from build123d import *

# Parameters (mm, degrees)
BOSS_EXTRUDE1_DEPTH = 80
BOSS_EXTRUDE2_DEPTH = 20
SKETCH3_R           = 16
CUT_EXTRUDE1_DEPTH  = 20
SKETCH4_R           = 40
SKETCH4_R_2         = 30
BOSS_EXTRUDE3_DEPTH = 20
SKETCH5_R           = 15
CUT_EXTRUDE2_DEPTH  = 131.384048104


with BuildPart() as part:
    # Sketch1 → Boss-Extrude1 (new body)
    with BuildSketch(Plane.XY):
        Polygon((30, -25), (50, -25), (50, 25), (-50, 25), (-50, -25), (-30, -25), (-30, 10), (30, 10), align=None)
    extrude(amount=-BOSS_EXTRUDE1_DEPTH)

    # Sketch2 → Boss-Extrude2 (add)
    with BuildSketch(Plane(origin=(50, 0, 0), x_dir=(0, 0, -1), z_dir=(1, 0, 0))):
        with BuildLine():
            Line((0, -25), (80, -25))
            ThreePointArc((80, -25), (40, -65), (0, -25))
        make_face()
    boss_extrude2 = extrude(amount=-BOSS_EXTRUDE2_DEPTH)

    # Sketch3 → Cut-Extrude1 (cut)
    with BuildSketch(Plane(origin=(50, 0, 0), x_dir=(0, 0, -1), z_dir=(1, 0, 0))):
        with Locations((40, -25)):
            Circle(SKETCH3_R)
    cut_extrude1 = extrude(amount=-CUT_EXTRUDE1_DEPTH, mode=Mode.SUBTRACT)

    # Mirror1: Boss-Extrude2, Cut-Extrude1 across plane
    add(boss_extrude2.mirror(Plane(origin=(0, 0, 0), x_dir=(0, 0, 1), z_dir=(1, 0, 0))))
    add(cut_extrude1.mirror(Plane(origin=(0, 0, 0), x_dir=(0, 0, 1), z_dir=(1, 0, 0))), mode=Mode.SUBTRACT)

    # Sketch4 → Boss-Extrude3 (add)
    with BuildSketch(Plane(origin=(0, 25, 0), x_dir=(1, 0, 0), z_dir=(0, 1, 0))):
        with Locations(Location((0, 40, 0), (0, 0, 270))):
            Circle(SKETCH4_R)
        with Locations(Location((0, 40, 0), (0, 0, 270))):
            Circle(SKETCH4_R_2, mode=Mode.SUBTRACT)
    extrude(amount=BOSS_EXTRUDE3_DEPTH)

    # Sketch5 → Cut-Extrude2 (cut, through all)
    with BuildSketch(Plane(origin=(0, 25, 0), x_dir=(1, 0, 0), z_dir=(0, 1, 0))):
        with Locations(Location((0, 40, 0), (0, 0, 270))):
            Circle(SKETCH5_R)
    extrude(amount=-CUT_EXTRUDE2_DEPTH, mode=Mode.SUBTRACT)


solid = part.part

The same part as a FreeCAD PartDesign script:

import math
import FreeCAD as App
import Part
import Sketcher
from FreeCAD import Vector
Q = App.Units.Quantity


def add_polygon(sketch, points):
    """Adds a closed chain of lines whose ends are joined by coincident constraints."""
    first, n = sketch.GeometryCount, len(points)
    for a, b in zip(points, points[1:] + points[:1]):
        sketch.addGeometry(Part.LineSegment(App.Vector(*a, 0), App.Vector(*b, 0)), False)
    for i in range(n):
        sketch.addConstraint(Sketcher.Constraint("Coincident", first + i, 2, first + (i + 1) % n, 1))

doc = App.newDocument("Part")
body = doc.addObject("PartDesign::Body", "Body")

sketch1 = body.newObject("Sketcher::SketchObject", "Sketch")
sketch1.AttachmentSupport = (doc.getObject("XY_Plane"), [""])
sketch1.MapMode = "FlatFace"
add_polygon(sketch1, [(30, -25), (50, -25), (50, 25), (-50, 25), (-50, -25), (-30, -25), (-30, 10), (30, 10)])
sketch1.addConstraint(Sketcher.Constraint("Horizontal", 0))
sketch1.addConstraint(Sketcher.Constraint("Vertical", 1))
sketch1.addConstraint(Sketcher.Constraint("Horizontal", 2))
sketch1.addConstraint(Sketcher.Constraint("Vertical", 3))
sketch1.addConstraint(Sketcher.Constraint("Horizontal", 4))
sketch1.addConstraint(Sketcher.Constraint("Vertical", 5))
sketch1.addConstraint(Sketcher.Constraint("Horizontal", 6))
sketch1.addConstraint(Sketcher.Constraint("Vertical", 7))
sketch1.addConstraint(Sketcher.Constraint("Symmetric", 0, 2, 2, 2, -1, 1))
sketch1.addConstraint(Sketcher.Constraint("Symmetric", 4, 2, 7, 2, -2))
sketch1.addConstraint(Sketcher.Constraint("DistanceX", 0, 1, 0, 2, Q("20 mm")))
sketch1.addConstraint(Sketcher.Constraint("DistanceX", 2, 2, 2, 1, Q("100 mm")))
sketch1.addConstraint(Sketcher.Constraint("DistanceY", 1, 1, 1, 2, Q("50 mm")))
sketch1.addConstraint(Sketcher.Constraint("DistanceY", 5, 1, 5, 2, Q("35 mm")))
pad1 = body.newObject("PartDesign::Pad", "Pad")
pad1.Profile = sketch1
pad1.Length = 80
pad1.Reversed = True

sketch2 = body.newObject("Sketcher::SketchObject", "Sketch001")
sketch2.AttachmentSupport = (doc.getObject("YZ_Plane"), [""])
sketch2.MapMode = "FlatFace"
sketch2.AttachmentOffset = App.Placement(Vector(0, 0, 50), App.Rotation())
sketch2.addGeometry(Part.LineSegment(Vector(-25, -80, 0), Vector(-25, 0, 0)), False)
sketch2.addGeometry(Part.ArcOfCircle(Part.Circle(Vector(-25, -40, 0), Vector(0, 0, 1), 40), math.radians(90), math.radians(270)), False)
sketch2.addConstraint(Sketcher.Constraint("Coincident", 0, 1, 1, 2))
sketch2.addConstraint(Sketcher.Constraint("Coincident", 1, 1, 0, 2))
sketch2.addConstraint(Sketcher.Constraint("Vertical", 0))
sketch2.addConstraint(Sketcher.Constraint("PointOnObject", 1, 1, -1))
sketch2.addConstraint(Sketcher.Constraint("Vertical", 1, 3, 0, 1))
sketch2.addConstraint(Sketcher.Constraint("Radius", 1, Q("40 mm")))
sketch2.addConstraint(Sketcher.Constraint("DistanceX", 1, 3, -1, 1, Q("25 mm")))
pad2 = body.newObject("PartDesign::Pad", "Pad001")
pad2.Profile = sketch2
pad2.Length = 20
pad2.Reversed = True

sketch3 = body.newObject("Sketcher::SketchObject", "Sketch002")
sketch3.AttachmentSupport = (doc.getObject("YZ_Plane"), [""])
sketch3.MapMode = "FlatFace"
sketch3.AttachmentOffset = App.Placement(Vector(0, 0, 50), App.Rotation())
sketch3.addGeometry(Part.Circle(Vector(-25, -40, 0), Vector(0, 0, 1), 16), False)
sketch3.addConstraint(Sketcher.Constraint("Diameter", 0, Q("32 mm")))
sketch3.addConstraint(Sketcher.Constraint("DistanceX", 0, 3, -1, 1, Q("25 mm")))
sketch3.addConstraint(Sketcher.Constraint("DistanceY", 0, 3, -1, 1, Q("40 mm")))
pocket1 = body.newObject("PartDesign::Pocket", "Pocket")
pocket1.Profile = sketch3
pocket1.Length = 20
doc.recompute()

mirrored = body.newObject("PartDesign::Mirrored", "Mirrored")
mirrored.Originals = [pad2, pocket1]
mirrored.MirrorPlane = (doc.getObject("YZ_Plane"), [""])
body.Tip = mirrored

sketch4 = body.newObject("Sketcher::SketchObject", "Sketch003")
sketch4.AttachmentSupport = (doc.getObject("XZ_Plane"), [""])
sketch4.MapMode = "FlatFace"
sketch4.AttachmentOffset = App.Placement(Vector(0, 0, -25), App.Rotation())
sketch4.addGeometry(Part.Circle(Vector(0, -40, 0), Vector(0, 0, 1), 40), False)
sketch4.addGeometry(Part.Circle(Vector(0, -40, 0), Vector(0, 0, 1), 30), False)
sketch4.addConstraint(Sketcher.Constraint("Coincident", 1, 3, 0, 3))
sketch4.addConstraint(Sketcher.Constraint("PointOnObject", 0, 3, -2))
sketch4.addConstraint(Sketcher.Constraint("Diameter", 0, Q("80 mm")))
sketch4.addConstraint(Sketcher.Constraint("Diameter", 1, Q("60 mm")))
sketch4.addConstraint(Sketcher.Constraint("DistanceY", 0, 3, -1, 1, Q("40 mm")))
pad3 = body.newObject("PartDesign::Pad", "Pad002")
pad3.Profile = sketch4
pad3.Length = 20
pad3.Reversed = True

sketch5 = body.newObject("Sketcher::SketchObject", "Sketch004")
sketch5.AttachmentSupport = (doc.getObject("XZ_Plane"), [""])
sketch5.MapMode = "FlatFace"
sketch5.AttachmentOffset = App.Placement(Vector(0, 0, -25), App.Rotation())
sketch5.addGeometry(Part.Circle(Vector(0, -40, 0), Vector(0, 0, 1), 15), False)
sketch5.addConstraint(Sketcher.Constraint("PointOnObject", 0, 3, -2))
sketch5.addConstraint(Sketcher.Constraint("Diameter", 0, Q("30 mm")))
sketch5.addConstraint(Sketcher.Constraint("DistanceY", 0, 3, -1, 1, Q("40 mm")))
pocket2 = body.newObject("PartDesign::Pocket", "Pocket001")
pocket2.Profile = sketch5
pocket2.Type = "ThroughAll"
pocket2.Reversed = True

doc.recompute()
